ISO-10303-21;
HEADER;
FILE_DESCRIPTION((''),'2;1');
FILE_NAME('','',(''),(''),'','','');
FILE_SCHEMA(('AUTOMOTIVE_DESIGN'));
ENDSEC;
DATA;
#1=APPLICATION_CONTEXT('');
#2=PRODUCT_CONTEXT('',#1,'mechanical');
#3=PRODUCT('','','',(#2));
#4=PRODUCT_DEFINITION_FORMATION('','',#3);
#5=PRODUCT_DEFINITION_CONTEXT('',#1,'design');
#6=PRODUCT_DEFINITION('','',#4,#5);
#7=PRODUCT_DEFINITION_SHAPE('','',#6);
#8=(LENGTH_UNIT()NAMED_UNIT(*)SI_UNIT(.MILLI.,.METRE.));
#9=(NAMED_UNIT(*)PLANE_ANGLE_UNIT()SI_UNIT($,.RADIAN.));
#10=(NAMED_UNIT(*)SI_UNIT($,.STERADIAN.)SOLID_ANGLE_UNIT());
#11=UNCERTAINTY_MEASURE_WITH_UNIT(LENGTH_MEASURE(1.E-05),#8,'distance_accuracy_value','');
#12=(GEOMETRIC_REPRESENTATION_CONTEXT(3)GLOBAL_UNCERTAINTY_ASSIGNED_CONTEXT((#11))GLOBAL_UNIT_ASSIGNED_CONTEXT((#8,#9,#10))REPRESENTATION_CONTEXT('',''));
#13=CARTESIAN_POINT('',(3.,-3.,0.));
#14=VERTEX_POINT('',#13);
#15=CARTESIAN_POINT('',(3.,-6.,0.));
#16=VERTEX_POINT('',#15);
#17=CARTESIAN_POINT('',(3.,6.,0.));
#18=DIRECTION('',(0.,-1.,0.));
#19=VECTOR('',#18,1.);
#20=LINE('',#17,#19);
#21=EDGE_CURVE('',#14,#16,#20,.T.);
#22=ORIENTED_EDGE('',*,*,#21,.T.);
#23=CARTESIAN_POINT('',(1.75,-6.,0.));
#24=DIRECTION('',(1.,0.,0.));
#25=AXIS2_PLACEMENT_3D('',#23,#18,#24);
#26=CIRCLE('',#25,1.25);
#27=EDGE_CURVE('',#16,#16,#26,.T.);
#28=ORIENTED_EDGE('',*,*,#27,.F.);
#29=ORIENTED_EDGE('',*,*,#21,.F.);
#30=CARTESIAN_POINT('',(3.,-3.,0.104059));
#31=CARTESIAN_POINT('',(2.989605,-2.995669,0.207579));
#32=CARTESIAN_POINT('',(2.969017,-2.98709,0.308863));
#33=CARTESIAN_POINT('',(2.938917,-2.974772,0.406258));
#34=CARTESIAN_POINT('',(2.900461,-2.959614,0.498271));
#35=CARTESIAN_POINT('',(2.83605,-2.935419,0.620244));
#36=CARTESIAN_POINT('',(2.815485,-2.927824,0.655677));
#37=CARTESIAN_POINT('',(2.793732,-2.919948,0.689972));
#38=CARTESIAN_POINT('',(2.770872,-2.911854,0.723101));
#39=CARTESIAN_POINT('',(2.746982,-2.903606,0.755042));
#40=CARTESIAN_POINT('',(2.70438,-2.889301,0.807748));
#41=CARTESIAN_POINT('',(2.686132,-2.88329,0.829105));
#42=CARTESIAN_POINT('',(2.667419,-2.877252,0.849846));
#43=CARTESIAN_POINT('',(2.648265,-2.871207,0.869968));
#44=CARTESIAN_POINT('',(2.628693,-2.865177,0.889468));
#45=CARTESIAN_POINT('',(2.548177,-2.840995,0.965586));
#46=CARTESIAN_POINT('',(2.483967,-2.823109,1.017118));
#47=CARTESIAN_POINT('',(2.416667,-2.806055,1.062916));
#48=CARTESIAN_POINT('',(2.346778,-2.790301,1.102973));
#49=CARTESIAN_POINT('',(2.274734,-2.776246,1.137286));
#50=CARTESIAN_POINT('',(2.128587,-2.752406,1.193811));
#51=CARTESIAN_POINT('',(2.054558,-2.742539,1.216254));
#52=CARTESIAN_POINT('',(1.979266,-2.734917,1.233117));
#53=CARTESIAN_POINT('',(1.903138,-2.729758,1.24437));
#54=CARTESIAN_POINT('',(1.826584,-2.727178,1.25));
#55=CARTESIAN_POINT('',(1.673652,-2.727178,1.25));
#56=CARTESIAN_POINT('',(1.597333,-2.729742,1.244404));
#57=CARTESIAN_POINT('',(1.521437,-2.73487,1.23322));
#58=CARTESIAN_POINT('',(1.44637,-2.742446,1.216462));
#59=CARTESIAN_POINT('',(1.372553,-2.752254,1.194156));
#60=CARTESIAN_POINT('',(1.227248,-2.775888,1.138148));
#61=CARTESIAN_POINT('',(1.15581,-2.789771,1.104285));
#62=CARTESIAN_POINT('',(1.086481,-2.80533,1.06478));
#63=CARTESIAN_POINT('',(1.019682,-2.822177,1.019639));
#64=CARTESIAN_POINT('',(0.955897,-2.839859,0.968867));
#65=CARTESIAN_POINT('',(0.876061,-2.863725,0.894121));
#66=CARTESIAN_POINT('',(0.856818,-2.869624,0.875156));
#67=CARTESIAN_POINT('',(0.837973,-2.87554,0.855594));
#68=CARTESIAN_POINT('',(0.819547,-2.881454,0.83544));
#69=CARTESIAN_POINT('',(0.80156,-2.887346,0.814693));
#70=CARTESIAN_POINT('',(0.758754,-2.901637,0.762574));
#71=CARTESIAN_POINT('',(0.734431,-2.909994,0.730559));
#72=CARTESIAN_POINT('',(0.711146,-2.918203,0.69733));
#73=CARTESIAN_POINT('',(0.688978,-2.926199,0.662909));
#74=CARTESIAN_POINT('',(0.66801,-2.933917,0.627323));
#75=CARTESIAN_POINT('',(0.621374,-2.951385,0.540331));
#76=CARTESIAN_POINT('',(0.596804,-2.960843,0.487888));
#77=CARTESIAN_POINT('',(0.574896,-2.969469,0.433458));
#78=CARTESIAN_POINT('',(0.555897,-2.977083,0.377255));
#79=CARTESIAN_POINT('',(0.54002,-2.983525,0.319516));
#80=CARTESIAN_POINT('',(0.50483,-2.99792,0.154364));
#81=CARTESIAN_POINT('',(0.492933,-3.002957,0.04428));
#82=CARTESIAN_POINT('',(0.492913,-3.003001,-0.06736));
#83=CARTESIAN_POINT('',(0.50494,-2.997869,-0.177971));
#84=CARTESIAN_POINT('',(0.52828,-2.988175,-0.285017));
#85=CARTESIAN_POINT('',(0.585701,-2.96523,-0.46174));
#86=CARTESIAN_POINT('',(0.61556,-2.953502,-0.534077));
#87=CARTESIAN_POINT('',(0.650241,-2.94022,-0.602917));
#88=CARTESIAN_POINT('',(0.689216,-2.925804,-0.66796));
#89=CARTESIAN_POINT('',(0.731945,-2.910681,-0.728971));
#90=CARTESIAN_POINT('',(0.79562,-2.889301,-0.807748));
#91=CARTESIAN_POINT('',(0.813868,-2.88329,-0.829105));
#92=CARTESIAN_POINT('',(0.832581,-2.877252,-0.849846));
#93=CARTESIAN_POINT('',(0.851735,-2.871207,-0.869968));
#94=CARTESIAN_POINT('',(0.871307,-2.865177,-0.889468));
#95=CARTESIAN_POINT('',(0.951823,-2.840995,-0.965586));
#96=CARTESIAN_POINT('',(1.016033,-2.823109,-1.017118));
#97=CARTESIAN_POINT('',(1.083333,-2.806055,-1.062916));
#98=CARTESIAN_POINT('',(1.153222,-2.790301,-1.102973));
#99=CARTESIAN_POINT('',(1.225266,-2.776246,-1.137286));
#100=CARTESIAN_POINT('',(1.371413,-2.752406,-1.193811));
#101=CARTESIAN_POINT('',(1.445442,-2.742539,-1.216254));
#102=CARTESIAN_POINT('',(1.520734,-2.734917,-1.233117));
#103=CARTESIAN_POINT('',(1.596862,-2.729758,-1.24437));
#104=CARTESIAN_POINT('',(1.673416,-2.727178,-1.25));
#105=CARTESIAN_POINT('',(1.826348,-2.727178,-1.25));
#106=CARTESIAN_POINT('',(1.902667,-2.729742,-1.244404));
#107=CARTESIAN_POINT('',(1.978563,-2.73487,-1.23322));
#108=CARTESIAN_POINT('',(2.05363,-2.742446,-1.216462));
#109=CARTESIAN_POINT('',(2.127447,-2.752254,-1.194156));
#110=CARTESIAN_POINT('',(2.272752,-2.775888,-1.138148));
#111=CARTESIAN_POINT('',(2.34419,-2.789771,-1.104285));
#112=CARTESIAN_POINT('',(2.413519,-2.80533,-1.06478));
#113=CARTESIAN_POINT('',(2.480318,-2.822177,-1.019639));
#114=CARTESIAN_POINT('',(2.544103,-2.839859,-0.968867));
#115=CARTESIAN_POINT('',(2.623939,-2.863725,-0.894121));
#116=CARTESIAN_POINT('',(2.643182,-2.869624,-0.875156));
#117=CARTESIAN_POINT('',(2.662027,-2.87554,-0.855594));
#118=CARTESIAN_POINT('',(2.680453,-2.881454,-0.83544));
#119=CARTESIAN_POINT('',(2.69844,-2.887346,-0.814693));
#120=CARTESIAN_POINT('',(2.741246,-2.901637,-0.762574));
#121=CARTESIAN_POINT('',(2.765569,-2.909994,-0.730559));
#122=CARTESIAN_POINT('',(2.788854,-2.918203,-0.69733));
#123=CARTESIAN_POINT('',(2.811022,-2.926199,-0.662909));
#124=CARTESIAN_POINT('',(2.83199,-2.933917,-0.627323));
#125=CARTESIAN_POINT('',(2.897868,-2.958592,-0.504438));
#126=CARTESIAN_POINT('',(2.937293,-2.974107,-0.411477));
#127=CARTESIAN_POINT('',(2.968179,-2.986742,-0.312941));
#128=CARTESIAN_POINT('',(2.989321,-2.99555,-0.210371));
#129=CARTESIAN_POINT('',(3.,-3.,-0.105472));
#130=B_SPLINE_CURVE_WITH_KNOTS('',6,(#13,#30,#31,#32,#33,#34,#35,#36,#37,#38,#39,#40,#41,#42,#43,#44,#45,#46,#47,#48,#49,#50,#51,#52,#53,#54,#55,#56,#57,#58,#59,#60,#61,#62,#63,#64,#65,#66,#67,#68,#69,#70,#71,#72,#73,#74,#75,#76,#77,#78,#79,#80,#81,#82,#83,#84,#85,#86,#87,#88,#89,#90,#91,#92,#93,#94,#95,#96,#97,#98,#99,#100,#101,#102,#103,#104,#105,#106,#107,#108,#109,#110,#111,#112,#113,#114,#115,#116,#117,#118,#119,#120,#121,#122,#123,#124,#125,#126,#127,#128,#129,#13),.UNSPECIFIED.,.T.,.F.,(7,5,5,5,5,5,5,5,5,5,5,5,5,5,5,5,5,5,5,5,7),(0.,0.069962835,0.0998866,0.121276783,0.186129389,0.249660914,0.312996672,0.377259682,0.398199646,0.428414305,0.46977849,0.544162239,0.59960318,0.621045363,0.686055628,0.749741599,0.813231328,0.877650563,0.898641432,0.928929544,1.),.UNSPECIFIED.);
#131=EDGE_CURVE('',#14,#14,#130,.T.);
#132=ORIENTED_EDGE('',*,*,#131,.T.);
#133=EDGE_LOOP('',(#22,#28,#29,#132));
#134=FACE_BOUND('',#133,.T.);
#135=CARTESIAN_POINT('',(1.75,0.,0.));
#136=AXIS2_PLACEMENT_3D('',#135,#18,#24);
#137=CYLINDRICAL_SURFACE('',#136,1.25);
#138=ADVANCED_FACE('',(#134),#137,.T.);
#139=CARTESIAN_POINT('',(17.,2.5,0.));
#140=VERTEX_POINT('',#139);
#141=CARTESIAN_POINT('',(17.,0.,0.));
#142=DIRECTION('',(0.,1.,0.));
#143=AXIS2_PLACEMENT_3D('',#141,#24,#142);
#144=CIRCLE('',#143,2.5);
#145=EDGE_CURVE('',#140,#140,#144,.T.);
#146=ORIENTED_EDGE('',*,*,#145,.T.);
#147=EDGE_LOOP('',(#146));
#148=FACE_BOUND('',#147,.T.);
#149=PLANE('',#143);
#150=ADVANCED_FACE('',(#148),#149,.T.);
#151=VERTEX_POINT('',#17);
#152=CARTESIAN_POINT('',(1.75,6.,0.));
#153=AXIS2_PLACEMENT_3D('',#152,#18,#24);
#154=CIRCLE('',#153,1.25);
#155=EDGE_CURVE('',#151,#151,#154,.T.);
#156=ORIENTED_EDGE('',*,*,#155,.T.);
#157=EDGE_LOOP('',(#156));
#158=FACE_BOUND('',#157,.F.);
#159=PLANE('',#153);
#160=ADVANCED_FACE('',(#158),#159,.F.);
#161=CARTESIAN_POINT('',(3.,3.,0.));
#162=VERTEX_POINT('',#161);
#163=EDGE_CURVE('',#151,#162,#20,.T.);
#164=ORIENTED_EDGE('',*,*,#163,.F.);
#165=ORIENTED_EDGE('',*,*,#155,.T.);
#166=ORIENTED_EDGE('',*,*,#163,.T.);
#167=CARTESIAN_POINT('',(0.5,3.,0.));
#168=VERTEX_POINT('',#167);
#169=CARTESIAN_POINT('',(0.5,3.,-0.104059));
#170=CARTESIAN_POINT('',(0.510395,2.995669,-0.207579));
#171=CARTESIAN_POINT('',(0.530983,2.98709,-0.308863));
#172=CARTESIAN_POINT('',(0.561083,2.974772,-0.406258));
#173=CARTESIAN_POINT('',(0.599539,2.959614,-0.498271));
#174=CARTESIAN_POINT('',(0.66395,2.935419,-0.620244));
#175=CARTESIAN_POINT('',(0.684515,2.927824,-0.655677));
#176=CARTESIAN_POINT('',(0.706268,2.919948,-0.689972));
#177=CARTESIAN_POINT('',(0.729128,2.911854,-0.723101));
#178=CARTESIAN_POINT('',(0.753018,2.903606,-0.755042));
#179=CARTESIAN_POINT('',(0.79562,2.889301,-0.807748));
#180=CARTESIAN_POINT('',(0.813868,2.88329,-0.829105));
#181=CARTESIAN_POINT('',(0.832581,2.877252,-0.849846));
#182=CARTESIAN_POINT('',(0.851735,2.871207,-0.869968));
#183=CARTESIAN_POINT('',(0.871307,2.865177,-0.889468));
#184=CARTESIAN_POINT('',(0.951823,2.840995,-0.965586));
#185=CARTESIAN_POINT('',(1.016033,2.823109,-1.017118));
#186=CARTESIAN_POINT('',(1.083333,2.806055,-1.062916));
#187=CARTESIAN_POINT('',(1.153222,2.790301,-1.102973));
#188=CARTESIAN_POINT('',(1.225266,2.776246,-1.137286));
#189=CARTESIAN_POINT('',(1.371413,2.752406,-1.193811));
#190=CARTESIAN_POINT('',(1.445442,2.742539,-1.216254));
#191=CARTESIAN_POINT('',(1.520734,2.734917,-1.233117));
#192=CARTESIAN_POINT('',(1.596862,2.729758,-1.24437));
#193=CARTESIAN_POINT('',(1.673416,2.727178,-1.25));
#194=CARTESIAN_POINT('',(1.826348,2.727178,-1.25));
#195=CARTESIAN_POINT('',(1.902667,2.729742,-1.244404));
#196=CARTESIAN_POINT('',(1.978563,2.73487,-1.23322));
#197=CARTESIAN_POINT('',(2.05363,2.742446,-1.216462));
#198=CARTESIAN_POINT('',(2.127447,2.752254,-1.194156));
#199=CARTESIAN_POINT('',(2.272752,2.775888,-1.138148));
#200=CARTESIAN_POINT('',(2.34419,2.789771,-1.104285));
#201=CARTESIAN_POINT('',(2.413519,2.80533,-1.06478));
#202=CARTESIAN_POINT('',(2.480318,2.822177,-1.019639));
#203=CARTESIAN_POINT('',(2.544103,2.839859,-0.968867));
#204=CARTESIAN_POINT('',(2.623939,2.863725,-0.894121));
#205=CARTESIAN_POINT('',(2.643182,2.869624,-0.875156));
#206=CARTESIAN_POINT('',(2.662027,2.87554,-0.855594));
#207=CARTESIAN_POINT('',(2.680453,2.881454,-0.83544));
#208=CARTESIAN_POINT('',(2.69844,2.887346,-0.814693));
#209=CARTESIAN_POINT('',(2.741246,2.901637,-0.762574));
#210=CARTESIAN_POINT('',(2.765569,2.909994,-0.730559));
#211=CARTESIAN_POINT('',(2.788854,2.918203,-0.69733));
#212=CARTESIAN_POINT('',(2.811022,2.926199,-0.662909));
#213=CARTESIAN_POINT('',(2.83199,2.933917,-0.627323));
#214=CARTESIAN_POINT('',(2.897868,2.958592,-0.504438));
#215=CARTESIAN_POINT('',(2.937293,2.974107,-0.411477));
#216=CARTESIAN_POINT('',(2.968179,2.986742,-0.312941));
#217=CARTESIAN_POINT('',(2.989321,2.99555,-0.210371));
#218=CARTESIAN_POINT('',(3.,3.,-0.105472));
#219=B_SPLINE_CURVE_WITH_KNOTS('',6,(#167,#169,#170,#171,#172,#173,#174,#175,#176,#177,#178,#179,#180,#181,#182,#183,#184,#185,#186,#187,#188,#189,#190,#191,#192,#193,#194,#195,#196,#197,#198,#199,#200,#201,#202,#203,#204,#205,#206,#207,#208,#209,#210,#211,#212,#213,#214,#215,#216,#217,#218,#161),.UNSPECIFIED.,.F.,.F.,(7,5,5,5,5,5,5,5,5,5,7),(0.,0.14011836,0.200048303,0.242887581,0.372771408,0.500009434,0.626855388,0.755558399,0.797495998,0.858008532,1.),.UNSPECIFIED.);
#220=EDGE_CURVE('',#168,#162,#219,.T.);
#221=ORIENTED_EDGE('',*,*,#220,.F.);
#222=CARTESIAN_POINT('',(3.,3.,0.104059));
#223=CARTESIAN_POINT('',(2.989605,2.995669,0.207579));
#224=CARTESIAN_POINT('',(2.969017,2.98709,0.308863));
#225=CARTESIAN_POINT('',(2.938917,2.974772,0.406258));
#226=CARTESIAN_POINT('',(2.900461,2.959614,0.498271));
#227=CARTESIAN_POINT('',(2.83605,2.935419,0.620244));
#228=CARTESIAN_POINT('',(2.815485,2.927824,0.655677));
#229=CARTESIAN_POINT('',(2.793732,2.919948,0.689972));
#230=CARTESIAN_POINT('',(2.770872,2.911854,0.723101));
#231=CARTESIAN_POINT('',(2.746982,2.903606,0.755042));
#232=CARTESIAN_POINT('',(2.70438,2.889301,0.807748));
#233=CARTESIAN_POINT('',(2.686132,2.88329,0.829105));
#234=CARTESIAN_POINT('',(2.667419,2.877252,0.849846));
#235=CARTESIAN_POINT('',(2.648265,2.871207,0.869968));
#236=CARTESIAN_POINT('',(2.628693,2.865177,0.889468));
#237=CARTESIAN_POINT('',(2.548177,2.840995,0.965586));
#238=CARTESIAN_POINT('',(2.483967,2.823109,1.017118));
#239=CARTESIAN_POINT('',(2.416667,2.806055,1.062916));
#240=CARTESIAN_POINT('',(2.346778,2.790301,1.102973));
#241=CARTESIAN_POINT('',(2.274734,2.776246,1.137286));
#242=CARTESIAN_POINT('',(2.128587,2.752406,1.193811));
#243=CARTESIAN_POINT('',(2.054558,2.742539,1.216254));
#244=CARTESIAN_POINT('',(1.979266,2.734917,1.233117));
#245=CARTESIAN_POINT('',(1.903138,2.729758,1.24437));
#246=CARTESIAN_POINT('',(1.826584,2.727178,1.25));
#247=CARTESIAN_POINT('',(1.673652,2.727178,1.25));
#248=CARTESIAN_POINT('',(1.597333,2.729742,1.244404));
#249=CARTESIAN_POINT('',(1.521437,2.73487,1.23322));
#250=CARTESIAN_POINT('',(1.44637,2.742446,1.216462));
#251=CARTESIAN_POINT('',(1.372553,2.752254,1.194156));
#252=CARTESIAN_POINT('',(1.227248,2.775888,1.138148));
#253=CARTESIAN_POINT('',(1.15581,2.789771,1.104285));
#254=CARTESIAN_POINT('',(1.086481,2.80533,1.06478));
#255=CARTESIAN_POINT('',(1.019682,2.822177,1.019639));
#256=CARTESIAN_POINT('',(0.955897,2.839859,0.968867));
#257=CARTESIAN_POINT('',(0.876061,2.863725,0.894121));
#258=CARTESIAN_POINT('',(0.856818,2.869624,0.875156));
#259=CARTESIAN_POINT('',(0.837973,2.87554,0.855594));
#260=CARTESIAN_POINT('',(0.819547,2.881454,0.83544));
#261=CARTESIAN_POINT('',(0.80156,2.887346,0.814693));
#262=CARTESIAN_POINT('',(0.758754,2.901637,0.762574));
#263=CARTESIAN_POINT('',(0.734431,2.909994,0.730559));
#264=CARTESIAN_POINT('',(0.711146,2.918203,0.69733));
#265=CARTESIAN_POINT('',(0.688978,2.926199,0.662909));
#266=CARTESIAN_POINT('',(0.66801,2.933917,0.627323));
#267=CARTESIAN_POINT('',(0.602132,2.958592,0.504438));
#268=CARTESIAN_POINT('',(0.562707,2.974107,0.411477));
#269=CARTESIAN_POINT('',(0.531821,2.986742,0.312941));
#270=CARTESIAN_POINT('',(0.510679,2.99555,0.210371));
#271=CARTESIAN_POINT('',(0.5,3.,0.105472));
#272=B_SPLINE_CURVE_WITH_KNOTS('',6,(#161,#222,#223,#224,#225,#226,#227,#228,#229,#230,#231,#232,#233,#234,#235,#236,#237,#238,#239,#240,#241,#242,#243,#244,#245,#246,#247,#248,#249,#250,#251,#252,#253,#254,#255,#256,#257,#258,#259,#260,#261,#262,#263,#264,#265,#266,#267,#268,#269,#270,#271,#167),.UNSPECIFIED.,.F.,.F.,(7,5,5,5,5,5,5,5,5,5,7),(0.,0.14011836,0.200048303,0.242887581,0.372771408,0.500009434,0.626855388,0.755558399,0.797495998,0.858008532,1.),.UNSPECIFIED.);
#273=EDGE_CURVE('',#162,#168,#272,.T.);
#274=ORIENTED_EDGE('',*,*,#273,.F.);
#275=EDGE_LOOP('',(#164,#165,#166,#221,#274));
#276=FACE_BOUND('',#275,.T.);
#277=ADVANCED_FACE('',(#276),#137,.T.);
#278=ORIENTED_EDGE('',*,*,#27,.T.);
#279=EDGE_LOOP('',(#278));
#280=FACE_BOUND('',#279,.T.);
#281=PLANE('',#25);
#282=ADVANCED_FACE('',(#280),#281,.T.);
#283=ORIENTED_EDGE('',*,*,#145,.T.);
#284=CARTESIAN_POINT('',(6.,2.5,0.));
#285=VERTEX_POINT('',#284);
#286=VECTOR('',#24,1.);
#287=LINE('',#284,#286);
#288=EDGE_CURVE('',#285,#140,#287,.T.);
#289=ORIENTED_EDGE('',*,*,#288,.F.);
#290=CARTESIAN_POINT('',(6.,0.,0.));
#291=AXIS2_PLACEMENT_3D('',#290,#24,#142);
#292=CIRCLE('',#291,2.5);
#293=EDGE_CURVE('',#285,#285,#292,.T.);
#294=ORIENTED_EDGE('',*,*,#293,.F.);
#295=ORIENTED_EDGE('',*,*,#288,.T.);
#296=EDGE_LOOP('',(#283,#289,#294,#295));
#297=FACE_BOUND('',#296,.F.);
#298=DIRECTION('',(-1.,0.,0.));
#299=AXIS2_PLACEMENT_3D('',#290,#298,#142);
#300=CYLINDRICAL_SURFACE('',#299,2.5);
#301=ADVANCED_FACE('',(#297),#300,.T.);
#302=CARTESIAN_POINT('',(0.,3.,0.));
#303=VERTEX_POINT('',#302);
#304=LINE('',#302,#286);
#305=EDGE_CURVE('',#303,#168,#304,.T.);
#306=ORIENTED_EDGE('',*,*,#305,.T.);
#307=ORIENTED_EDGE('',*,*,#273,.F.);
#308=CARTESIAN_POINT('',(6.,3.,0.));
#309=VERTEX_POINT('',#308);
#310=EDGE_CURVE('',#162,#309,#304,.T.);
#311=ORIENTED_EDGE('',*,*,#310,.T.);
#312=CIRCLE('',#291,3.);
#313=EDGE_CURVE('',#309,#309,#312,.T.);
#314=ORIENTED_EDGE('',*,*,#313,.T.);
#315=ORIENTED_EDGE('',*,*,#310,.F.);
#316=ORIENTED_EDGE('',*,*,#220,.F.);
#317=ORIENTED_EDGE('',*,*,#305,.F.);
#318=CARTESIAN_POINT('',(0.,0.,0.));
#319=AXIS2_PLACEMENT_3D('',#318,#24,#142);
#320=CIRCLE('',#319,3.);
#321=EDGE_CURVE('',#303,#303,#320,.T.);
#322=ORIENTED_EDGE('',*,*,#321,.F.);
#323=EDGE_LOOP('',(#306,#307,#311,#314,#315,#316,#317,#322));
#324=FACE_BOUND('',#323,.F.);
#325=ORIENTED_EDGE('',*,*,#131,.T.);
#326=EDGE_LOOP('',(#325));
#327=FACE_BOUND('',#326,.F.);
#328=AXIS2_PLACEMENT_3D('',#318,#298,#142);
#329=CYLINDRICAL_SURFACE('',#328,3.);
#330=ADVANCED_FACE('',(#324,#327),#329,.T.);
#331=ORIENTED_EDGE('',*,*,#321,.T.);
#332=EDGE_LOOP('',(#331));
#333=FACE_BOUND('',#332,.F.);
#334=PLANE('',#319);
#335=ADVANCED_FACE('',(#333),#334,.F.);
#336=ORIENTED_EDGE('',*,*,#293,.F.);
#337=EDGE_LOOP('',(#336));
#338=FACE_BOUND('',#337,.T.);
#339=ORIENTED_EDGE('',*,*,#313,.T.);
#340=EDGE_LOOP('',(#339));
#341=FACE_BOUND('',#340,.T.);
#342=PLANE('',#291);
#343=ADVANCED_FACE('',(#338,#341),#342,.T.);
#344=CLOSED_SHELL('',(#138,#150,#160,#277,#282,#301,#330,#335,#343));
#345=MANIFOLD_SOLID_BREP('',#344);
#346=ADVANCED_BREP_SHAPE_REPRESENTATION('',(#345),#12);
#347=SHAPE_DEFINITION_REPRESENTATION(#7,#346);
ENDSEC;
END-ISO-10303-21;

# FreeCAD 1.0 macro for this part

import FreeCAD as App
import Part
import Sketcher

V = App.Vector
Q = App.Units.Quantity

doc = App.newDocument("Part")
body = doc.addObject("PartDesign::Body", "Body")

sketch1 = doc.addObject("Sketcher::SketchObject", "Sketch")
body.addObject(sketch1)
sketch1.AttachmentSupport = (doc.YZ_Plane, [""])
sketch1.MapMode = "FlatFace"
sketch1.addGeometry(Part.Circle(V(0, 0, 0), V(0, 0, 1), 3), False)
sketch1.addConstraint([
    Sketcher.Constraint("Coincident", 0, 3, -1, 1),
    Sketcher.Constraint("Diameter", 0, Q("6 mm")),
])
pad1 = doc.addObject("PartDesign::Pad", "Pad")
body.addObject(pad1)
pad1.Profile = sketch1
pad1.Length = 6

sketch2 = doc.addObject("Sketcher::SketchObject", "Sketch001")
body.addObject(sketch2)
sketch2.AttachmentSupport = (doc.YZ_Plane, [""])
sketch2.MapMode = "FlatFace"
sketch2.AttachmentOffset = App.Placement(V(0, 0, 6), App.Rotation())
sketch2.addGeometry(Part.Circle(V(0, 0, 0), V(0, 0, 1), 2.5), False)
sketch2.addConstraint([
    Sketcher.Constraint("Coincident", 0, 3, -1, 1),
    Sketcher.Constraint("Diameter", 0, Q("5 mm")),
])
pad2 = doc.addObject("PartDesign::Pad", "Pad001")
body.addObject(pad2)
pad2.Profile = sketch2
pad2.Length = 11

sketch3 = doc.addObject("Sketcher::SketchObject", "Sketch002")
body.addObject(sketch3)
sketch3.AttachmentSupport = (doc.XZ_Plane, [""])
sketch3.MapMode = "FlatFace"
sketch3.addGeometry(Part.Circle(V(1.8, 0, 0), V(0, 0, 1), 1.2), False)
sketch3.addConstraint([
    Sketcher.Constraint("PointOnObject", 0, 3, -1),
    Sketcher.Constraint("Diameter", 0, Q("2.5 mm")),
    Sketcher.Constraint("DistanceX", -1, 1, 0, 3, Q("1.75 mm")),
])
pad3 = doc.addObject("PartDesign::Pad", "Pad002")
body.addObject(pad3)
pad3.Profile = sketch3
pad3.Length = 12
pad3.Midplane = True

doc.recompute()
